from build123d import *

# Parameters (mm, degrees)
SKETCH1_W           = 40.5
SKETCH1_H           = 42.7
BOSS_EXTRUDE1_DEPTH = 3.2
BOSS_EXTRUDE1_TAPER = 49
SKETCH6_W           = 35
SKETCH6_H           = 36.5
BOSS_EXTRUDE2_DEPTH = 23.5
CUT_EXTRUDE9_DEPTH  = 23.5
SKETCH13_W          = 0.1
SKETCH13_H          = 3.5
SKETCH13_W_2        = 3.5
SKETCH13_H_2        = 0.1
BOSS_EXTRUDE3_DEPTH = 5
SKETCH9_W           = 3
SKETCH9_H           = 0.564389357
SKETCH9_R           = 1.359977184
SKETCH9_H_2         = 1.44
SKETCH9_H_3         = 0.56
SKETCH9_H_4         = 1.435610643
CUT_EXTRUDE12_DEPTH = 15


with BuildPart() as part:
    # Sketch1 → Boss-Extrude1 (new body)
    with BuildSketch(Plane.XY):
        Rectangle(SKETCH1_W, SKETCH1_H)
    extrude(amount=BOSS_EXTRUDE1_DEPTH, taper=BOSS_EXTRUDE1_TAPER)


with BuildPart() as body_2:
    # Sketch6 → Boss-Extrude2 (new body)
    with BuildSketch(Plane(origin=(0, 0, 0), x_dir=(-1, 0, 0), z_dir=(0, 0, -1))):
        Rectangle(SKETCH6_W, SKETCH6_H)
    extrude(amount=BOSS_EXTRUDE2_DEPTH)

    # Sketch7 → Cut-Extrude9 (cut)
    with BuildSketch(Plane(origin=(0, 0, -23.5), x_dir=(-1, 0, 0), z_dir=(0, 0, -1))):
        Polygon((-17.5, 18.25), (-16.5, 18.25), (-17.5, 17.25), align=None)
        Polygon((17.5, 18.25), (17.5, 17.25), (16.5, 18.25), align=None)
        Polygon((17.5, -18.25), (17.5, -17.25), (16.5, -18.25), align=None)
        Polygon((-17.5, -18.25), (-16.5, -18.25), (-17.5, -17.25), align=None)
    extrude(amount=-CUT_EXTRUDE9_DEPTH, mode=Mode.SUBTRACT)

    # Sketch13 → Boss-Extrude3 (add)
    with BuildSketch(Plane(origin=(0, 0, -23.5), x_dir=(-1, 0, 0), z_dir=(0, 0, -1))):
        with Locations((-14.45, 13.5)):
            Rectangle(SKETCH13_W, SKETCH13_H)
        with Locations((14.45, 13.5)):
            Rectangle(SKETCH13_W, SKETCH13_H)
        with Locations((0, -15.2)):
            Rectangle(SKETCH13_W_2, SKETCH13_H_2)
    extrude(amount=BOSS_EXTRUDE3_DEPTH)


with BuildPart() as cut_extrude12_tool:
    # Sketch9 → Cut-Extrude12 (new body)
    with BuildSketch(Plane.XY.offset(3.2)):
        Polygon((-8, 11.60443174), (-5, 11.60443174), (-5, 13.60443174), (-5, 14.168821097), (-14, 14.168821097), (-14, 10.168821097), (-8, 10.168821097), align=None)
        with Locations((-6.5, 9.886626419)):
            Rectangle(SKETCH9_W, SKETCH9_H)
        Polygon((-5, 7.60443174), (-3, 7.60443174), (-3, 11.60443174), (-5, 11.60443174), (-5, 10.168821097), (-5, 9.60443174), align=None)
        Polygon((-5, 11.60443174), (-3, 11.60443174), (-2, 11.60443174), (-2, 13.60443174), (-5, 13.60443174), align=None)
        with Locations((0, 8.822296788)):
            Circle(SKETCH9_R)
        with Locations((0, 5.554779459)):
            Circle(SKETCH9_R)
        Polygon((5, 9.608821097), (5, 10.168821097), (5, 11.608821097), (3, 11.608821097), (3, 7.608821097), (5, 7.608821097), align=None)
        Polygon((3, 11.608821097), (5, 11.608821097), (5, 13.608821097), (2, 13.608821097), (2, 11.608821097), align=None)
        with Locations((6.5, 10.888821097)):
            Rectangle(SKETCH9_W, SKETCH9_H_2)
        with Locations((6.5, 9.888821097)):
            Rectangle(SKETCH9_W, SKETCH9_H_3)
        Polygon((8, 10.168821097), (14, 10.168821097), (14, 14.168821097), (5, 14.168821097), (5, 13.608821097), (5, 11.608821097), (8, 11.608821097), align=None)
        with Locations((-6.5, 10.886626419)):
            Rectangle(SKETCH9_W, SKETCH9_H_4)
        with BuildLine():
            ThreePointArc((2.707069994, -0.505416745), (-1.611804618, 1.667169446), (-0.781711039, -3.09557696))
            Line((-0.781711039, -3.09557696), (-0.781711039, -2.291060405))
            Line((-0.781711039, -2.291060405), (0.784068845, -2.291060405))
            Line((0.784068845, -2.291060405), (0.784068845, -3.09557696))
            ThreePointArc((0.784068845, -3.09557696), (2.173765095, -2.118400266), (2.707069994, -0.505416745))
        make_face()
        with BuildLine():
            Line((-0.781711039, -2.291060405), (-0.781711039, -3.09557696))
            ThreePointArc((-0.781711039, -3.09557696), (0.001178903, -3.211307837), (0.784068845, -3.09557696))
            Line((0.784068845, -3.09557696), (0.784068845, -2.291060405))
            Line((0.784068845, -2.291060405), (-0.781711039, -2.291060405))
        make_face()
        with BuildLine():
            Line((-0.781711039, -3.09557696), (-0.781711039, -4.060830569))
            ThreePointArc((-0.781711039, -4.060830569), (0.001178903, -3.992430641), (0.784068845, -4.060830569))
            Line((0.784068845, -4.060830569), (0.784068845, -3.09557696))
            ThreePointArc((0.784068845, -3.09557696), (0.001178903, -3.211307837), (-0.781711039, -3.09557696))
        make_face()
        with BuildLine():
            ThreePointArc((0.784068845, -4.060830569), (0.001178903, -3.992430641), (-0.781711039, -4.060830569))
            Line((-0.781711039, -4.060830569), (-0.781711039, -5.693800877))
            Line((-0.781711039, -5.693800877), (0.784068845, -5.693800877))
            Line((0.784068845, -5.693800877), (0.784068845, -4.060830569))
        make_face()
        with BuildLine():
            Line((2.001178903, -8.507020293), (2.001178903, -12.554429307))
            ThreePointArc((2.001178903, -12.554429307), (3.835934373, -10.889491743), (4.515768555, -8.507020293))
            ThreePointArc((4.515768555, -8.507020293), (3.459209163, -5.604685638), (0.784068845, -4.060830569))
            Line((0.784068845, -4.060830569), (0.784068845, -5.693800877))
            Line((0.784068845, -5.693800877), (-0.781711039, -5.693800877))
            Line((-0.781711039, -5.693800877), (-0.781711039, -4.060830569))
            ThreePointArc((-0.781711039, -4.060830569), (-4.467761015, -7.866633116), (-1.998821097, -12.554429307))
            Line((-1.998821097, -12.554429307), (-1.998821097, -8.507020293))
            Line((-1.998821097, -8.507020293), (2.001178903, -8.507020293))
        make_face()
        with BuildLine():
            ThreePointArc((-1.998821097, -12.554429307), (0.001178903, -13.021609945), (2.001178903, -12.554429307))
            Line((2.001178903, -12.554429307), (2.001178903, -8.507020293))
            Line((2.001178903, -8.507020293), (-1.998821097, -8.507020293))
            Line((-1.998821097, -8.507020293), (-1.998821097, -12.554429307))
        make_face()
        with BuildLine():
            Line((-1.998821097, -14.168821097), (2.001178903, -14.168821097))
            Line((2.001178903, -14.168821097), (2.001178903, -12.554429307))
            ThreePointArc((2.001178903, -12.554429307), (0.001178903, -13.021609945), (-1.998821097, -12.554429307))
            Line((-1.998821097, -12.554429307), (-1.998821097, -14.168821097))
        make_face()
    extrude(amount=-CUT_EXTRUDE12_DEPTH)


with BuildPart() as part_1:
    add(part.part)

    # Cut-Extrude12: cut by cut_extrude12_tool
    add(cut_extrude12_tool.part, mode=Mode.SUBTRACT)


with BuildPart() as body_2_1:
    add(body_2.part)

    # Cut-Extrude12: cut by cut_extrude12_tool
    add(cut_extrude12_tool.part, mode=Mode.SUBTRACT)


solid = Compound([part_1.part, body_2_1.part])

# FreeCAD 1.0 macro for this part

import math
import FreeCAD as App
import Part
import Sketcher

V = App.Vector
Q = App.Units.Quantity

doc = App.newDocument("Part")
params = doc.addObject("Spreadsheet::Sheet", "Params")
for row, (alias, value) in enumerate([
    ("sketch1_width", "40.5 mm"),
    ("sketch1_height", "42.7 mm"),
    ("pad1_length", "3.2 mm"),
    ("pad1_taper", "-49 deg"),
    ("sketch2_width", "35 mm"),
    ("sketch2_height", "36.5 mm"),
    ("pad2_length", "23.5 mm"),
    ("sketch3_width", "1 mm"),
    ("pocket1_length", "23.5 mm"),
    ("sketch4_width", "0.1 mm"),
    ("sketch4_width2", "3.5 mm"),
    ("pad3_length", "5 mm"),
    ("sketch5_width", "3 mm"),
    ("sketch5_width2", "2 mm"),
    ("sketch5_width3", "9 mm"),
    ("sketch5_width4", "4 mm"),
    ("sketch5_height", "0.56 mm"),
    ("pad4_length", "15 mm"),
], start=1):
    params.set(f"A{row}", alias)
    params.set(f"B{row}", "=" + value)
    params.setAlias(f"B{row}", alias)

body = doc.addObject("PartDesign::Body", "Body")

# Sketch on XY plane
sketch1 = body.newObject("Sketcher::SketchObject", "Sketch")
sketch1.AttachmentSupport = (doc.getObject("XY_Plane"), [""])
sketch1.MapMode = "FlatFace"
sketch1.addGeometry([
    Part.LineSegment(V(-20.25, 21.35, 0), V(-20.25, -21.35, 0)),
    Part.LineSegment(V(-20.25, -21.35, 0), V(20.25, -21.35, 0)),
    Part.LineSegment(V(20.25, -21.35, 0), V(20.25, 21.35, 0)),
    Part.LineSegment(V(20.25, 21.35, 0), V(-20.25, 21.35, 0)),
], False)
sketch1.addConstraint([
    Sketcher.Constraint("Coincident", 0, 2, 1, 1),
    Sketcher.Constraint("Coincident", 1, 2, 2, 1),
    Sketcher.Constraint("Coincident", 2, 2, 3, 1),
    Sketcher.Constraint("Coincident", 3, 2, 0, 1),
    Sketcher.Constraint("Vertical", 0),
    Sketcher.Constraint("Horizontal", 1),
    Sketcher.Constraint("Vertical", 2),
    Sketcher.Constraint("Horizontal", 3),
    Sketcher.Constraint("Symmetric", 0, 2, 2, 2, -1, 1),
    Sketcher.Constraint("DistanceX", 1, 1, 1, 2, Q("40.5 mm")),
    Sketcher.Constraint("DistanceY", 0, 2, 0, 1, Q("42.7 mm")),
])
sketch1.setExpression("Constraints[9]", "Params.sketch1_width")
sketch1.setExpression("Constraints[10]", "Params.sketch1_height")
pad1 = body.newObject("PartDesign::Pad", "Pad")
pad1.Profile = sketch1
pad1.setExpression("Length", "Params.pad1_length")
pad1.setExpression("TaperAngle", "Params.pad1_taper")
body2 = doc.addObject("PartDesign::Body", "Body001")

# Sketch on XY plane
sketch2 = body2.newObject("Sketcher::SketchObject", "Sketch001")
sketch2.AttachmentSupport = (doc.getObject("XY_Plane001"), [""])
sketch2.MapMode = "FlatFace"
sketch2.addGeometry([
    Part.LineSegment(V(17.5, 18.25, 0), V(17.5, -18.25, 0)),
    Part.LineSegment(V(17.5, -18.25, 0), V(-17.5, -18.25, 0)),
    Part.LineSegment(V(-17.5, -18.25, 0), V(-17.5, 18.25, 0)),
    Part.LineSegment(V(-17.5, 18.25, 0), V(17.5, 18.25, 0)),
], False)
sketch2.addConstraint([
    Sketcher.Constraint("Coincident", 0, 2, 1, 1),
    Sketcher.Constraint("Coincident", 1, 2, 2, 1),
    Sketcher.Constraint("Coincident", 2, 2, 3, 1),
    Sketcher.Constraint("Coincident", 3, 2, 0, 1),
    Sketcher.Constraint("Vertical", 0),
    Sketcher.Constraint("Horizontal", 1),
    Sketcher.Constraint("Vertical", 2),
    Sketcher.Constraint("Horizontal", 3),
    Sketcher.Constraint("Symmetric", 0, 2, 2, 2, -1, 1),
    Sketcher.Constraint("DistanceX", 1, 2, 1, 1, Q("35 mm")),
    Sketcher.Constraint("DistanceY", 0, 2, 0, 1, Q("36.5 mm")),
])
sketch2.setExpression("Constraints[9]", "Params.sketch2_width")
sketch2.setExpression("Constraints[10]", "Params.sketch2_height")
pad2 = body2.newObject("PartDesign::Pad", "Pad001")
pad2.Profile = sketch2
pad2.setExpression("Length", "Params.pad2_length")
pad2.Reversed = True

# Sketch on XY plane
sketch3 = body2.newObject("Sketcher::SketchObject", "Sketch002")
sketch3.AttachmentSupport = (doc.getObject("XY_Plane001"), [""])
sketch3.MapMode = "FlatFace"
sketch3.AttachmentOffset = App.Placement(V(0, 0, -23.5), App.Rotation())
sketch3.addGeometry([
    Part.LineSegment(V(16.5, 18.25, 0), V(17.5, 18.25, 0)),  # 0
    Part.LineSegment(V(17.5, 18.25, 0), V(17.5, 17.25, 0)),  # 1
    Part.LineSegment(V(17.5, 17.25, 0), V(16.5, 18.25, 0)),  # 2
    Part.LineSegment(V(-17.5, 17.25, 0), V(-17.5, 18.25, 0)),  # 3
    Part.LineSegment(V(-17.5, 18.25, 0), V(-16.5, 18.25, 0)),  # 4
    Part.LineSegment(V(-16.5, 18.25, 0), V(-17.5, 17.25, 0)),  # 5
    Part.LineSegment(V(-17.5, -18.25, 0), V(-17.5, -17.25, 0)),  # 6
    Part.LineSegment(V(-17.5, -17.25, 0), V(-16.5, -18.25, 0)),  # 7
    Part.LineSegment(V(-16.5, -18.25, 0), V(-17.5, -18.25, 0)),  # 8
    Part.LineSegment(V(17.5, -18.25, 0), V(16.5, -18.25, 0)),  # 9
    Part.LineSegment(V(16.5, -18.25, 0), V(17.5, -17.25, 0)),  # 10
    Part.LineSegment(V(17.5, -17.25, 0), V(17.5, -18.25, 0)),  # 11
], False)
sketch3.addConstraint([
    Sketcher.Constraint("Coincident", 0, 2, 1, 1),
    Sketcher.Constraint("Coincident", 1, 2, 2, 1),
    Sketcher.Constraint("Coincident", 2, 2, 0, 1),
    Sketcher.Constraint("Coincident", 3, 2, 4, 1),
    Sketcher.Constraint("Coincident", 4, 2, 5, 1),
    Sketcher.Constraint("Coincident", 5, 2, 3, 1),
    Sketcher.Constraint("Coincident", 6, 2, 7, 1),
    Sketcher.Constraint("Coincident", 7, 2, 8, 1),
    Sketcher.Constraint("Coincident", 8, 2, 6, 1),
    Sketcher.Constraint("Coincident", 9, 2, 10, 1),
    Sketcher.Constraint("Coincident", 10, 2, 11, 1),
    Sketcher.Constraint("Coincident", 11, 2, 9, 1),
    Sketcher.Constraint("Horizontal", 0),
    Sketcher.Constraint("Vertical", 1),
    Sketcher.Constraint("Vertical", 3),
    Sketcher.Constraint("Horizontal", 4),
    Sketcher.Constraint("Vertical", 6),
    Sketcher.Constraint("Horizontal", 8),
    Sketcher.Constraint("Horizontal", 9),
    Sketcher.Constraint("Vertical", 11),
    Sketcher.Constraint("Symmetric", 1, 2, 6, 2, -1, 1),
    Sketcher.Constraint("Symmetric", 2, 2, 7, 2, -1, 1),
    Sketcher.Constraint("Symmetric", 4, 2, 9, 2, -1, 1),
    Sketcher.Constraint("Symmetric", 5, 2, 10, 2, -1, 1),
    Sketcher.Constraint("Symmetric", 0, 2, 3, 2, -2),
    Sketcher.Constraint("Perpendicular", 2, 5),
    Sketcher.Constraint("Horizontal", 1, 2, 5, 2),
    Sketcher.Constraint("Vertical", 4, 2, 7, 2),
    Sketcher.Constraint("DistanceX", 0, 1, 0, 2, Q("1 mm")),
    Sketcher.Constraint("DistanceX", 3, 2, 2, 2, Q("34 mm")),
    Sketcher.Constraint("DistanceY", 6, 2, 5, 2, Q("34.5 mm")),
])
sketch3.setExpression("Constraints[28]", "Params.sketch3_width")
pocket1 = body2.newObject("PartDesign::Pocket", "Pocket")
pocket1.Profile = sketch3
pocket1.setExpression("Length", "Params.pocket1_length")
pocket1.Reversed = True

# Sketch on XY plane
sketch4 = body2.newObject("Sketcher::SketchObject", "Sketch003")
sketch4.AttachmentSupport = (doc.getObject("XY_Plane001"), [""])
sketch4.MapMode = "FlatFace"
sketch4.AttachmentOffset = App.Placement(V(0, 0, -23.5), App.Rotation())
sketch4.addGeometry([
    Part.LineSegment(V(14.5, 15.25, 0), V(14.5, 11.75, 0)),  # 0
    Part.LineSegment(V(14.5, 11.75, 0), V(14.4, 11.75, 0)),  # 1
    Part.LineSegment(V(14.4, 11.75, 0), V(14.4, 15.25, 0)),  # 2
    Part.LineSegment(V(14.4, 15.25, 0), V(14.5, 15.25, 0)),  # 3
    Part.LineSegment(V(-14.4, 15.25, 0), V(-14.4, 11.75, 0)),  # 4
    Part.LineSegment(V(-14.4, 11.75, 0), V(-14.5, 11.75, 0)),  # 5
    Part.LineSegment(V(-14.5, 11.75, 0), V(-14.5, 15.25, 0)),  # 6
    Part.LineSegment(V(-14.5, 15.25, 0), V(-14.4, 15.25, 0)),  # 7
    Part.LineSegment(V(1.75, -15.15, 0), V(1.75, -15.25, 0)),  # 8
    Part.LineSegment(V(1.75, -15.25, 0), V(-1.75, -15.25, 0)),  # 9
    Part.LineSegment(V(-1.75, -15.25, 0), V(-1.75, -15.15, 0)),  # 10
    Part.LineSegment(V(-1.75, -15.15, 0), V(1.75, -15.15, 0)),  # 11
], False)
sketch4.addConstraint([
    Sketcher.Constraint("Coincident", 0, 2, 1, 1),
    Sketcher.Constraint("Coincident", 1, 2, 2, 1),
    Sketcher.Constraint("Coincident", 2, 2, 3, 1),
    Sketcher.Constraint("Coincident", 3, 2, 0, 1),
    Sketcher.Constraint("Coincident", 4, 2, 5, 1),
    Sketcher.Constraint("Coincident", 5, 2, 6, 1),
    Sketcher.Constraint("Coincident", 6, 2, 7, 1),
    Sketcher.Constraint("Coincident", 7, 2, 4, 1),
    Sketcher.Constraint("Coincident", 8, 2, 9, 1),
    Sketcher.Constraint("Coincident", 9, 2, 10, 1),
    Sketcher.Constraint("Coincident", 10, 2, 11, 1),
    Sketcher.Constraint("Coincident", 11, 2, 8, 1),
    Sketcher.Constraint("Vertical", 0),
    Sketcher.Constraint("Horizontal", 1),
    Sketcher.Constraint("Vertical", 2),
    Sketcher.Constraint("Horizontal", 3),
    Sketcher.Constraint("Vertical", 4),
    Sketcher.Constraint("Horizontal", 5),
    Sketcher.Constraint("Vertical", 6),
    Sketcher.Constraint("Horizontal", 7),
    Sketcher.Constraint("Vertical", 8),
    Sketcher.Constraint("Horizontal", 9),
    Sketcher.Constraint("Vertical", 10),
    Sketcher.Constraint("Horizontal", 11),
    Sketcher.Constraint("Symmetric", 1, 2, 4, 2, -2),
    Sketcher.Constraint("Symmetric", 3, 2, 6, 2, -2),
    Sketcher.Constraint("Equal", 11, 0),
    Sketcher.Constraint("Equal", 7, 8),
    Sketcher.Constraint("DistanceX", 1, 2, 1, 1, Q("0.1 mm")),
    Sketcher.Constraint("DistanceX", 9, 2, 9, 1, Q("3.5 mm")),
    Sketcher.Constraint("DistanceX", 5, 2, 0, 2, Q("29 mm")),
    Sketcher.Constraint("DistanceY", 8, 2, 1, 2, Q("27 mm")),
    Sketcher.Constraint("DistanceY", -1, 1, 0, 2, Q("11.75 mm")),
    Sketcher.Constraint("DistanceX", -1, 1, 8, 2, Q("1.75 mm")),
])
sketch4.setExpression("Constraints[28]", "Params.sketch4_width")
sketch4.setExpression("Constraints[29]", "Params.sketch4_width2")
pad3 = body2.newObject("PartDesign::Pad", "Pad002")
pad3.Profile = sketch4
pad3.setExpression("Length", "Params.pad3_length")
pad3.Reversed = True
body3 = doc.addObject("PartDesign::Body", "Body002")
body3.AllowCompound = True

# Sketch on XY plane
sketch5 = body3.newObject("Sketcher::SketchObject", "Sketch004")
sketch5.AttachmentSupport = (doc.getObject("XY_Plane002"), [""])
sketch5.MapMode = "FlatFace"
sketch5.AttachmentOffset = App.Placement(V(0, 0, 3.2), App.Rotation())
sketch5.addGeometry([
    Part.LineSegment(V(-8, 10.168821, 0), V(-8, 9.604432, 0)),  # 0
    Part.LineSegment(V(-8, 9.604432, 0), V(-5, 9.604432, 0)),  # 1
    Part.LineSegment(V(-5, 9.604432, 0), V(-5, 7.604432, 0)),  # 2
    Part.LineSegment(V(-5, 7.604432, 0), V(-3, 7.604432, 0)),  # 3
    Part.LineSegment(V(-3, 7.604432, 0), V(-3, 11.604432, 0)),  # 4
    Part.LineSegment(V(-3, 11.604432, 0), V(-2, 11.604432, 0)),  # 5
    Part.LineSegment(V(-2, 11.604432, 0), V(-2, 13.604432, 0)),  # 6
    Part.LineSegment(V(-2, 13.604432, 0), V(-5, 13.604432, 0)),  # 7
    Part.LineSegment(V(-5, 13.604432, 0), V(-5, 14.168821, 0)),  # 8
    Part.LineSegment(V(-5, 14.168821, 0), V(-14, 14.168821, 0)),  # 9
    Part.LineSegment(V(-14, 14.168821, 0), V(-14, 10.168821, 0)),  # 10
    Part.LineSegment(V(-14, 10.168821, 0), V(-8, 10.168821, 0)),  # 11
    Part.Circle(V(0, 8.822297, 0), V(0, 0, 1), 1.359977),  # 12
    Part.Circle(V(0, 5.554779, 0), V(0, 0, 1), 1.359977),  # 13
    Part.LineSegment(V(3, 11.608821, 0), V(3, 7.608821, 0)),  # 14
    Part.LineSegment(V(3, 7.608821, 0), V(5, 7.608821, 0)),  # 15
    Part.LineSegment(V(5, 7.608821, 0), V(5, 9.608821, 0)),  # 16
    Part.LineSegment(V(5, 9.608821, 0), V(8, 9.608821, 0)),  # 17
    Part.LineSegment(V(8, 9.608821, 0), V(8, 10.168821, 0)),  # 18
    Part.LineSegment(V(8, 10.168821, 0), V(14, 10.168821, 0)),  # 19
    Part.LineSegment(V(14, 10.168821, 0), V(14, 14.168821, 0)),  # 20
    Part.LineSegment(V(14, 14.168821, 0), V(5, 14.168821, 0)),  # 21
    Part.LineSegment(V(5, 14.168821, 0), V(5, 13.608821, 0)),  # 22
    Part.LineSegment(V(5, 13.608821, 0), V(2, 13.608821, 0)),  # 23
    Part.LineSegment(V(2, 13.608821, 0), V(2, 11.608821, 0)),  # 24
    Part.LineSegment(V(2, 11.608821, 0), V(3, 11.608821, 0)),  # 25
    Part.ArcOfCircle(Part.Circle(V(0.001179, -0.505417, 0), V(0, 0, 1), 2.705891), math.radians(0), math.radians(253.182274)),  # 26
    Part.LineSegment(V(-0.781711, -3.095577, 0), V(-0.781711, -4.060831, 0)),  # 27
    Part.ArcOfCircle(Part.Circle(V(0.001179, -8.50702, 0), V(0, 0, 1), 4.51459), math.radians(99.986336), math.radians(243.704029)),  # 28
    Part.LineSegment(V(-1.998821, -12.554429, 0), V(-1.998821, -14.168821, 0)),  # 29
    Part.LineSegment(V(-1.998821, -14.168821, 0), V(2.001179, -14.168821, 0)),  # 30
    Part.LineSegment(V(2.001179, -14.168821, 0), V(2.001179, -12.554429, 0)),  # 31
    Part.ArcOfCircle(Part.Circle(V(0.001179, -8.50702, 0), V(0, 0, 1), 4.51459), math.radians(-63.704029), math.radians(0)),  # 32
    Part.ArcOfCircle(Part.Circle(V(0.001179, -8.50702, 0), V(0, 0, 1), 4.51459), math.radians(0), math.radians(80.013664)),  # 33
    Part.LineSegment(V(0.784069, -4.060831, 0), V(0.784069, -3.095577, 0)),  # 34
    Part.ArcOfCircle(Part.Circle(V(0.001179, -0.505417, 0), V(0, 0, 1), 2.705891), math.radians(-73.182274), math.radians(0)),  # 35
], False)
sketch5.addConstraint([
    Sketcher.Constraint("Coincident", 0, 2, 1, 1),
    Sketcher.Constraint("Coincident", 1, 2, 2, 1),
    Sketcher.Constraint("Coincident", 2, 2, 3, 1),
    Sketcher.Constraint("Coincident", 3, 2, 4, 1),
    Sketcher.Constraint("Coincident", 4, 2, 5, 1),
    Sketcher.Constraint("Coincident", 5, 2, 6, 1),
    Sketcher.Constraint("Coincident", 6, 2, 7, 1),
    Sketcher.Constraint("Coincident", 7, 2, 8, 1),
    Sketcher.Constraint("Coincident", 8, 2, 9, 1),
    Sketcher.Constraint("Coincident", 9, 2, 10, 1),
    Sketcher.Constraint("Coincident", 10, 2, 11, 1),
    Sketcher.Constraint("Coincident", 11, 2, 0, 1),
    Sketcher.Constraint("Coincident", 14, 2, 15, 1),
    Sketcher.Constraint("Coincident", 15, 2, 16, 1),
    Sketcher.Constraint("Coincident", 16, 2, 17, 1),
    Sketcher.Constraint("Coincident", 17, 2, 18, 1),
    Sketcher.Constraint("Coincident", 18, 2, 19, 1),
    Sketcher.Constraint("Coincident", 19, 2, 20, 1),
    Sketcher.Constraint("Coincident", 20, 2, 21, 1),
    Sketcher.Constraint("Coincident", 21, 2, 22, 1),
    Sketcher.Constraint("Coincident", 22, 2, 23, 1),
    Sketcher.Constraint("Coincident", 23, 2, 24, 1),
    Sketcher.Constraint("Coincident", 24, 2, 25, 1),
    Sketcher.Constraint("Coincident", 25, 2, 14, 1),
    Sketcher.Constraint("Coincident", 26, 2, 27, 1),
    Sketcher.Constraint("Coincident", 27, 2, 28, 1),
    Sketcher.Constraint("Coincident", 28, 2, 29, 1),
    Sketcher.Constraint("Coincident", 29, 2, 30, 1),
    Sketcher.Constraint("Coincident", 30, 2, 31, 1),
    Sketcher.Constraint("Coincident", 31, 2, 32, 1),
    Sketcher.Constraint("Tangent", 32, 2, 33, 1),
    Sketcher.Constraint("Coincident", 33, 2, 34, 1),
    Sketcher.Constraint("Coincident", 34, 2, 35, 1),
    Sketcher.Constraint("Tangent", 35, 2, 26, 1),
    Sketcher.Constraint("Vertical", 0),
    Sketcher.Constraint("Horizontal", 1),
    Sketcher.Constraint("Vertical", 2),
    Sketcher.Constraint("Horizontal", 3),
    Sketcher.Constraint("Vertical", 4),
    Sketcher.Constraint("Horizontal", 5),
    Sketcher.Constraint("Vertical", 6),
    Sketcher.Constraint("Horizontal", 7),
    Sketcher.Constraint("Vertical", 8),
    Sketcher.Constraint("Horizontal", 9),
    Sketcher.Constraint("Vertical", 10),
    Sketcher.Constraint("Horizontal", 11),
    Sketcher.Constraint("Vertical", 14),
    Sketcher.Constraint("Horizontal", 15),
    Sketcher.Constraint("Vertical", 16),
    Sketcher.Constraint("Horizontal", 17),
    Sketcher.Constraint("Vertical", 18),
    Sketcher.Constraint("Horizontal", 19),
    Sketcher.Constraint("Vertical", 20),
    Sketcher.Constraint("Horizontal", 21),
    Sketcher.Constraint("Vertical", 22),
    Sketcher.Constraint("Horizontal", 23),
    Sketcher.Constraint("Vertical", 24),
    Sketcher.Constraint("Horizontal", 25),
    Sketcher.Constraint("Vertical", 27),
    Sketcher.Constraint("Vertical", 29),
    Sketcher.Constraint("Horizontal", 30),
    Sketcher.Constraint("Vertical", 31),
    Sketcher.Constraint("Vertical", 34),
    Sketcher.Constraint("Coincident", 32, 3, 28, 3),
    Sketcher.Constraint("Equal", 12, 13),
    Sketcher.Constraint("Equal", 28, 32),
    Sketcher.Constraint("Equal", 32, 33),
    Sketcher.Constraint("Equal", 26, 35),
    Sketcher.Constraint("Symmetric", 11, 2, 18, 2, -2),
    Sketcher.Constraint("Symmetric", 9, 2, 20, 2, -2),
    Sketcher.Constraint("PointOnObject", 12, 3, -2),
    Sketcher.Constraint("PointOnObject", 13, 3, -2),
    Sketcher.Constraint("Horizontal", 28, 2, 31, 2),
    Sketcher.Constraint("Horizontal", 33, 3, 32, 2),
    Sketcher.Constraint("Horizontal", 27, 2, 33, 2),
    Sketcher.Constraint("Horizontal", 26, 2, 34, 2),
    Sketcher.Constraint("Horizontal", 26, 3, 35, 2),
    Sketcher.Constraint("Vertical", 2, 2, 7, 2),
    Sketcher.Constraint("Vertical", 16, 2, 21, 2),
    Sketcher.Constraint("Equal", 1, 7),
    Sketcher.Constraint("Equal", 3, 15),
    Sketcher.Constraint("Equal", 7, 17),
    Sketcher.Constraint("Equal", 17, 23),
    Sketcher.Constraint("Equal", 15, 2),
    Sketcher.Constraint("Equal", 30, 4),
    Sketcher.Constraint("Equal", 2, 6),
    Sketcher.Constraint("Equal", 0, 8),
    Sketcher.Constraint("Equal", 10, 14),
    Sketcher.Constraint("Equal", 6, 16),
    Sketcher.Constraint("Equal", 18, 22),
    Sketcher.Constraint("DistanceX", 1, 1, 1, 2, Q("3 mm")),
    Sketcher.Constraint("DistanceX", 3, 1, 3, 2, Q("2 mm")),
    Sketcher.Constraint("DistanceX", 9, 2, 9, 1, Q("9 mm")),
    Sketcher.Constraint("DistanceX", 30, 1, 30, 2, Q("4 mm")),
    Sketcher.Constraint("DistanceX", 0, 2, -1, 1, Q("8 mm")),
    Sketcher.Constraint("DistanceY", 18, 1, 18, 2, Q("0.56 mm")),
    Sketcher.Constraint("Radius", 26, Q("2.705891 mm")),
    Sketcher.Constraint("Radius", 28, Q("4.51459 mm")),
    Sketcher.Constraint("Diameter", 12, Q("2.719954 mm")),
    Sketcher.Constraint("DistanceX", 34, 2, 35, 2, Q("1.923001 mm")),
    Sketcher.Constraint("DistanceY", 0, 2, 0, 1, Q("0.564389 mm")),
    Sketcher.Constraint("DistanceY", 29, 2, 29, 1, Q("1.614392 mm")),
    Sketcher.Constraint("DistanceY", 28, 3, 13, 3, Q("14.0618 mm")),
    Sketcher.Constraint("DistanceY", 27, 2, 27, 1, Q("0.965254 mm")),
    Sketcher.Constraint("DistanceY", -1, 1, 13, 3, Q("5.554779 mm")),
    Sketcher.Constraint("DistanceX", -1, 1, 26, 3, Q("0.001179 mm")),
    Sketcher.Constraint("DistanceY", -1, 1, 0, 2, Q("9.604432 mm")),
    Sketcher.Constraint("DistanceY", -1, 1, 12, 3, Q("8.822297 mm")),
])
sketch5.setExpression("Constraints[90]", "Params.sketch5_width")
sketch5.setExpression("Constraints[91]", "Params.sketch5_width2")
sketch5.setExpression("Constraints[92]", "Params.sketch5_width3")
sketch5.setExpression("Constraints[93]", "Params.sketch5_width4")
sketch5.setExpression("Constraints[95]", "Params.sketch5_height")
pad4 = body3.newObject("PartDesign::Pad", "Pad003")
pad4.Profile = sketch5
pad4.setExpression("Length", "Params.pad4_length")
pad4.Reversed = True
doc.recompute()

body4 = doc.addObject("PartDesign::Body", "Body003")
body4.BaseFeature = body3
boolean = body.newObject("PartDesign::Boolean", "Boolean")
boolean.Type = "Cut"
boolean.addObjects([body4])
doc.recompute()

boolean2 = body2.newObject("PartDesign::Boolean", "Boolean001")
boolean2.Type = "Cut"
boolean2.addObjects([body3])

doc.recompute()
